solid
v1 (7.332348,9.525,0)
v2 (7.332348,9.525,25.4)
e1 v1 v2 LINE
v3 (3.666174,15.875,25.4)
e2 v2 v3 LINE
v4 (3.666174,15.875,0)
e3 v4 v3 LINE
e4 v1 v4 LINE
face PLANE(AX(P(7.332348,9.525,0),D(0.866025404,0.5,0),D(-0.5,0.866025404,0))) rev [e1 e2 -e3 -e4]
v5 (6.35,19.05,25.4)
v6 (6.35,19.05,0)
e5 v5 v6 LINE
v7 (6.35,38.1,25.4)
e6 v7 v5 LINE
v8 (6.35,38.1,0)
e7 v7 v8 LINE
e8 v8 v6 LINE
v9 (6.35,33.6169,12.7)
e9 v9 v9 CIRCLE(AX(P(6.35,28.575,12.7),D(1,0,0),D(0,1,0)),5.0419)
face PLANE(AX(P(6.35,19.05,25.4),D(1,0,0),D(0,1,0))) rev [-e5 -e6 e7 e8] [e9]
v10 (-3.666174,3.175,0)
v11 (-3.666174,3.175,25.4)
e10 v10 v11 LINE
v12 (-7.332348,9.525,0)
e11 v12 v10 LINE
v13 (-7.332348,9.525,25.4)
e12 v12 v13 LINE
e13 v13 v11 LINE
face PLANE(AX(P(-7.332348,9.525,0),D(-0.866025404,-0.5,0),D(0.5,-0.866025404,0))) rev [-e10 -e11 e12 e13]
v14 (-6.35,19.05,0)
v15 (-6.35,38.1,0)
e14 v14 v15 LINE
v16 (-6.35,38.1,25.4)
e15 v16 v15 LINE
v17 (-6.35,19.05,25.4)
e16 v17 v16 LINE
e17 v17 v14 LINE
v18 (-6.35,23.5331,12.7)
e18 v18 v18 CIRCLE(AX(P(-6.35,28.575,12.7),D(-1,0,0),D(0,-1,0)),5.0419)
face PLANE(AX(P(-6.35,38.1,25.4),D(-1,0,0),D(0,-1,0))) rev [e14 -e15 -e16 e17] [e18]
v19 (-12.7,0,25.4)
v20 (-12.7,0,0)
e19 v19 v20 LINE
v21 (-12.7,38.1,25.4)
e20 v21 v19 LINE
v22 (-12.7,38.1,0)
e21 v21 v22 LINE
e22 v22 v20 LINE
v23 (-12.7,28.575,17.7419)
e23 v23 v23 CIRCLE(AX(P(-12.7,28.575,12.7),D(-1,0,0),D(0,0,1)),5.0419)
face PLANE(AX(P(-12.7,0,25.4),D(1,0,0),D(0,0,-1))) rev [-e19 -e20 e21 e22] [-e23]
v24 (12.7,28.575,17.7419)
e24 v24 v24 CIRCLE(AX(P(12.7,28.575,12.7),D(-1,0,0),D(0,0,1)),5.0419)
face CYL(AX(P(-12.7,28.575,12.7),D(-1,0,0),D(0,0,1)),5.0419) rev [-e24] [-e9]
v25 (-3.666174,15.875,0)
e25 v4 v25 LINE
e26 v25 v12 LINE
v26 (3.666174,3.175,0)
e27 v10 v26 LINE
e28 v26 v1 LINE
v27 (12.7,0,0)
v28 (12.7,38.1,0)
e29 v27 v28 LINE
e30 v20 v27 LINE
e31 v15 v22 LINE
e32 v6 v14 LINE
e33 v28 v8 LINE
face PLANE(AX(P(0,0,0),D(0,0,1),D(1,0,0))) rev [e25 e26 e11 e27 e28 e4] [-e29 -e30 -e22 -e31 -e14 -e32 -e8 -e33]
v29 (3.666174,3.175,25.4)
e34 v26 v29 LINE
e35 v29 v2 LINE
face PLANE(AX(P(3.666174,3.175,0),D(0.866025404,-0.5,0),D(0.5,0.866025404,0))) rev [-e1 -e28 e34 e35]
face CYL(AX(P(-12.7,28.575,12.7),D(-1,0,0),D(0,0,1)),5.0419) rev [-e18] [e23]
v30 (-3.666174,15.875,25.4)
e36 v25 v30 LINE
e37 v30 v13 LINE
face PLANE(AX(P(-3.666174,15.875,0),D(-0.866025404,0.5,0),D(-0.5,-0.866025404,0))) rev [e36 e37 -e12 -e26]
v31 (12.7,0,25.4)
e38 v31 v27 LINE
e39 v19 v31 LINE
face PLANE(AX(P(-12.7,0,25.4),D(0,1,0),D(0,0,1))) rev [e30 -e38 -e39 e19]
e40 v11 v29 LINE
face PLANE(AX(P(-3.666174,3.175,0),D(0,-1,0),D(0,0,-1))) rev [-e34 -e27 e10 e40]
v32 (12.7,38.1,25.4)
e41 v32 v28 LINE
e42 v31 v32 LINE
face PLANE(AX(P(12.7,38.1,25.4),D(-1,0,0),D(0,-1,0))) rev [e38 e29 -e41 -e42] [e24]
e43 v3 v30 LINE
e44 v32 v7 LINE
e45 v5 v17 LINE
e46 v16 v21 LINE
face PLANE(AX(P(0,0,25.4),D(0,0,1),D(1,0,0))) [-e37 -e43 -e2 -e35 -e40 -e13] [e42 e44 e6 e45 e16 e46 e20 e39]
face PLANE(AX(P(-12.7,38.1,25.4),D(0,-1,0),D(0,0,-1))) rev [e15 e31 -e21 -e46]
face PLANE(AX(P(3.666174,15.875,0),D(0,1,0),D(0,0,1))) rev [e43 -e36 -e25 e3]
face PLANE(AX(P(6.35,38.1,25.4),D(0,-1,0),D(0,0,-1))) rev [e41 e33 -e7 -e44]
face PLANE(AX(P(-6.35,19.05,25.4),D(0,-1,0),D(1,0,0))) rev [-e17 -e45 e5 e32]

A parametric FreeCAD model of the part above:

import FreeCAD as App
import Part
import Sketcher

V = App.Vector
Q = App.Units.Quantity

doc = App.newDocument("Part")
body = doc.addObject("PartDesign::Body", "Body")

# Sketch on XY plane
sketch1 = body.newObject("Sketcher::SketchObject", "Sketch")
sketch1.AttachmentSupport = (doc.getObject("XY_Plane"), [""])
sketch1.MapMode = "FlatFace"
sketch1.addGeometry([
    Part.LineSegment(V(-13, 0, 0), V(13, 0, 0)),  # 0
    Part.LineSegment(V(13, 0, 0), V(13, 38, 0)),  # 1
    Part.LineSegment(V(13, 38, 0), V(6, 38, 0)),  # 2
    Part.LineSegment(V(6, 38, 0), V(6, 19, 0)),  # 3
    Part.LineSegment(V(6, 19, 0), V(-6, 19, 0)),  # 4
    Part.LineSegment(V(-6, 19, 0), V(-6, 38, 0)),  # 5
    Part.LineSegment(V(-6, 38, 0), V(-13, 38, 0)),  # 6
    Part.LineSegment(V(-13, 38, 0), V(-13, 0, 0)),  # 7
], False)
sketch1.addConstraint([
    Sketcher.Constraint("Coincident", 0, 2, 1, 1),
    Sketcher.Constraint("Coincident", 1, 2, 2, 1),
    Sketcher.Constraint("Coincident", 2, 2, 3, 1),
    Sketcher.Constraint("Coincident", 3, 2, 4, 1),
    Sketcher.Constraint("Coincident", 4, 2, 5, 1),
    Sketcher.Constraint("Coincident", 5, 2, 6, 1),
    Sketcher.Constraint("Coincident", 6, 2, 7, 1),
    Sketcher.Constraint("Coincident", 7, 2, 0, 1),
    Sketcher.Constraint("Horizontal", 0),
    Sketcher.Constraint("Vertical", 1),
    Sketcher.Constraint("Horizontal", 2),
    Sketcher.Constraint("Vertical", 3),
    Sketcher.Constraint("Horizontal", 4),
    Sketcher.Constraint("Vertical", 5),
    Sketcher.Constraint("Horizontal", 6),
    Sketcher.Constraint("Vertical", 7),
    Sketcher.Constraint("Symmetric", 0, 2, 7, 2, -1, 1),
    Sketcher.Constraint("Symmetric", 2, 2, 5, 2, -2),
    Sketcher.Constraint("DistanceX", 0, 1, 0, 2, Q("1 in")),
    Sketcher.Constraint("DistanceX", 4, 2, 4, 1, Q("0.5 in")),
    Sketcher.Constraint("DistanceY", 1, 1, 1, 2, Q("1.5 in")),
    Sketcher.Constraint("DistanceY", 3, 2, 3, 1, Q("0.75 in")),
])
pad1 = body.newObject("PartDesign::Pad", "Pad")
pad1.Profile = sketch1
pad1.Length = Q("1 in")

# Sketch on XY plane
sketch2 = body.newObject("Sketcher::SketchObject", "Sketch001")
sketch2.AttachmentSupport = (doc.getObject("XY_Plane"), [""])
sketch2.MapMode = "FlatFace"
sketch2.AttachmentOffset = App.Placement(V(0, 0, 1 * 25.4), App.Rotation())
sketch2.addGeometry([
    Part.LineSegment(V(4, 16, 0), V(-4, 16, 0)),  # 0
    Part.LineSegment(V(-4, 16, 0), V(-7, 10, 0)),  # 1
    Part.LineSegment(V(-7, 10, 0), V(-4, 3, 0)),  # 2
    Part.LineSegment(V(-4, 3, 0), V(4, 3, 0)),  # 3
    Part.LineSegment(V(4, 3, 0), V(7, 10, 0)),  # 4
    Part.LineSegment(V(7, 10, 0), V(4, 16, 0)),  # 5
], False)
sketch2.addConstraint([
    Sketcher.Constraint("Coincident", 0, 2, 1, 1),
    Sketcher.Constraint("Coincident", 1, 2, 2, 1),
    Sketcher.Constraint("Coincident", 2, 2, 3, 1),
    Sketcher.Constraint("Coincident", 3, 2, 4, 1),
    Sketcher.Constraint("Coincident", 4, 2, 5, 1),
    Sketcher.Constraint("Coincident", 5, 2, 0, 1),
    Sketcher.Constraint("Horizontal", 0),
    Sketcher.Constraint("Horizontal", 3),
    Sketcher.Constraint("Symmetric", 1, 2, 4, 2, -2),
    Sketcher.Constraint("Parallel", 1, 4),
    Sketcher.Constraint("Parallel", 2, 5),
    Sketcher.Constraint("Vertical", 0, 2, 2, 2),
    Sketcher.Constraint("Vertical", 3, 2, 5, 2),
    Sketcher.Constraint("Angle", 1, Q("-120 deg")),
    Sketcher.Constraint("DistanceY", 2, 2, 0, 2, Q("0.5 in")),
    Sketcher.Constraint("DistanceY", -1, 1, 0, 2, Q("0.625 in")),
    Sketcher.Constraint("DistanceX", 0, 2, 0, 1, Q("7.332348 mm")),
])
pocket1 = body.newObject("PartDesign::Pocket", "Pocket")
pocket1.Profile = sketch2
pocket1.Type = "ThroughAll"

# Sketch on YZ plane
sketch3 = body.newObject("Sketcher::SketchObject", "Sketch002")
sketch3.AttachmentSupport = (doc.getObject("YZ_Plane"), [""])
sketch3.MapMode = "FlatFace"
sketch3.AttachmentOffset = App.Placement(V(0, 0, -0.5 * 25.4), App.Rotation())
sketch3.addGeometry(Part.Circle(V(29, 13, 0), V(0, 0, 1), 5), False)
sketch3.addConstraint([
    Sketcher.Constraint("Diameter", 0, Q("0.397 in")),
    Sketcher.Constraint("DistanceY", -1, 1, 0, 3, Q("0.5 in")),
    Sketcher.Constraint("DistanceX", -1, 1, 0, 3, Q("1.125 in")),
])
doc.recompute()
hole = body.newObject("PartDesign::Hole", "Hole")
hole.Profile = sketch3
hole.ThreadType = "None"
hole.Diameter = Q("0.397 in")
hole.DepthType = "ThroughAll"
hole.Reversed = True

doc.recompute()
